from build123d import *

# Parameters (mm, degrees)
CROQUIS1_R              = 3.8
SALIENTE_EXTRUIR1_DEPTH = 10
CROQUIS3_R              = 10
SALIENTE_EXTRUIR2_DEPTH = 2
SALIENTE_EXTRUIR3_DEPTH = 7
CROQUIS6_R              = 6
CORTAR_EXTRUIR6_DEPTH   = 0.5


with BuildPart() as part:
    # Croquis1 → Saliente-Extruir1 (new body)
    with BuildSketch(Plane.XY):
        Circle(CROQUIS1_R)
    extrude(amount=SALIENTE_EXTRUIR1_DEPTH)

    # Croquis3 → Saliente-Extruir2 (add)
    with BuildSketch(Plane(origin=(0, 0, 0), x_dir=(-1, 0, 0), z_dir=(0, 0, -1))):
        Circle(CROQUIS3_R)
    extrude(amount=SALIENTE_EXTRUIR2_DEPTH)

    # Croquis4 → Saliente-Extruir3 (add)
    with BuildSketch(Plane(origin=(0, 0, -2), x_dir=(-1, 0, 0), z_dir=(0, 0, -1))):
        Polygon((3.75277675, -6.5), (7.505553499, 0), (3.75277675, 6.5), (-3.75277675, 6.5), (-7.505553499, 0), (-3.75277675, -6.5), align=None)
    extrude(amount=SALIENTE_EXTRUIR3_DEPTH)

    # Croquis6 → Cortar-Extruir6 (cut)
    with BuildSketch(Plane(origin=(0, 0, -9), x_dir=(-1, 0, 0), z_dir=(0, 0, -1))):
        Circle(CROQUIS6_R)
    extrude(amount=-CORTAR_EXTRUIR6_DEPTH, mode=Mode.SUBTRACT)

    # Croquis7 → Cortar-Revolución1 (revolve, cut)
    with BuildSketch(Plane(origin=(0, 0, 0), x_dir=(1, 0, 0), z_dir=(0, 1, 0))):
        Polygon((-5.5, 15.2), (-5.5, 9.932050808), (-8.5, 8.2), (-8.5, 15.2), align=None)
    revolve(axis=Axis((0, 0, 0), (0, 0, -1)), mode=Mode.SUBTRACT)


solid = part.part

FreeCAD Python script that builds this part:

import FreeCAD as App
import Part
import Sketcher
from FreeCAD import Vector
Q = App.Units.Quantity

doc = App.newDocument("Part")
params = doc.addObject("Spreadsheet::Sheet", "Params")
for row, (alias, value) in enumerate([
    ("sketch1_diameter", "7.6 mm"),
    ("pad1_length", "10 mm"),
    ("sketch2_diameter", "20 mm"),
    ("pad2_length", "2 mm"),
    ("pad3_length", "7 mm"),
    ("sketch4_diameter", "12 mm"),
    ("pocket1_length", "0.5 mm"),
    ("sketch5_width", "3 mm"),
    ("sketch5_height", "7 mm"),
    ("groove_angle", "360 deg"),
], start=1):
    params.set(f"A{row}", alias)
    params.set(f"B{row}", "=" + value)
    params.setAlias(f"B{row}", alias)

body = doc.addObject("PartDesign::Body", "Body")

sketch1 = body.newObject("Sketcher::SketchObject", "Sketch")
sketch1.AttachmentSupport = (doc.getObject("XY_Plane"), [""])
sketch1.MapMode = "FlatFace"
sketch1.addGeometry(Part.Circle(Vector(0, 0, 0), Vector(0, 0, 1), 3.8), False)
sketch1.addConstraint([
    Sketcher.Constraint("Coincident", 0, 3, -1, 1),
    Sketcher.Constraint("Diameter", 0, Q("7.6 mm")),
])
sketch1.setExpression("Constraints[1]", "Params.sketch1_diameter")
pad1 = body.newObject("PartDesign::Pad", "Pad")
pad1.Profile = sketch1
pad1.setExpression("Length", "Params.pad1_length")

sketch2 = body.newObject("Sketcher::SketchObject", "Sketch001")
sketch2.AttachmentSupport = (doc.getObject("XY_Plane"), [""])
sketch2.MapMode = "FlatFace"
sketch2.addGeometry(Part.Circle(Vector(0, 0, 0), Vector(0, 0, 1), 10), False)
sketch2.addConstraint([
    Sketcher.Constraint("Coincident", 0, 3, -1, 1),
    Sketcher.Constraint("Diameter", 0, Q("20 mm")),
])
sketch2.setExpression("Constraints[1]", "Params.sketch2_diameter")
pad2 = body.newObject("PartDesign::Pad", "Pad001")
pad2.Profile = sketch2
pad2.setExpression("Length", "Params.pad2_length")
pad2.Reversed = True

sketch3 = body.newObject("Sketcher::SketchObject", "Sketch002")
sketch3.AttachmentSupport = (doc.getObject("XY_Plane"), [""])
sketch3.MapMode = "FlatFace"
sketch3.AttachmentOffset = App.Placement(Vector(0, 0, -2), App.Rotation())
sketch3.addGeometry([
    Part.LineSegment(Vector(-4, -6, 0), Vector(-8, 0, 0)),
    Part.LineSegment(Vector(-8, 0, 0), Vector(-4, 6, 0)),
    Part.LineSegment(Vector(-4, 6, 0), Vector(4, 6, 0)),
    Part.LineSegment(Vector(4, 6, 0), Vector(8, 0, 0)),
    Part.LineSegment(Vector(8, 0, 0), Vector(4, -6, 0)),
    Part.LineSegment(Vector(4, -6, 0), Vector(-4, -6, 0)),
], False)
sketch3.addConstraint([
    Sketcher.Constraint("Coincident", 0, 2, 1, 1),
    Sketcher.Constraint("Coincident", 1, 2, 2, 1),
    Sketcher.Constraint("Coincident", 2, 2, 3, 1),
    Sketcher.Constraint("Coincident", 3, 2, 4, 1),
    Sketcher.Constraint("Coincident", 4, 2, 5, 1),
    Sketcher.Constraint("Coincident", 5, 2, 0, 1),
    Sketcher.Constraint("Horizontal", 2),
    Sketcher.Constraint("Horizontal", 5),
    Sketcher.Constraint("Symmetric", 0, 2, 3, 2, -1, 1),
    Sketcher.Constraint("Symmetric", 1, 2, 4, 2, -1, 1),
    Sketcher.Constraint("PointOnObject", 0, 2, -1),
    Sketcher.Constraint("Parallel", 0, 3),
    Sketcher.Constraint("Vertical", 2, 2, 4, 2),
    Sketcher.Constraint("Angle", 0, Q("120 deg")),
    Sketcher.Constraint("DistanceY", 4, 2, 2, 2, Q("13 mm")),
    Sketcher.Constraint("DistanceX", 2, 1, 2, 2, Q("7.505554 mm")),
])
pad3 = body.newObject("PartDesign::Pad", "Pad002")
pad3.Profile = sketch3
pad3.setExpression("Length", "Params.pad3_length")
pad3.Reversed = True

sketch4 = body.newObject("Sketcher::SketchObject", "Sketch003")
sketch4.AttachmentSupport = (doc.getObject("XY_Plane"), [""])
sketch4.MapMode = "FlatFace"
sketch4.AttachmentOffset = App.Placement(Vector(0, 0, -9), App.Rotation())
sketch4.addGeometry(Part.Circle(Vector(0, 0, 0), Vector(0, 0, 1), 6), False)
sketch4.addConstraint([
    Sketcher.Constraint("Coincident", 0, 3, -1, 1),
    Sketcher.Constraint("Diameter", 0, Q("12 mm")),
])
sketch4.setExpression("Constraints[1]", "Params.sketch4_diameter")
pocket1 = body.newObject("PartDesign::Pocket", "Pocket")
pocket1.Profile = sketch4
pocket1.setExpression("Length", "Params.pocket1_length")
pocket1.Reversed = True

sketch5 = body.newObject("Sketcher::SketchObject", "Sketch004")
sketch5.AttachmentSupport = (doc.getObject("XZ_Plane"), [""])
sketch5.MapMode = "FlatFace"
sketch5.addGeometry([
    Part.LineSegment(Vector(-5.5, -9.9, 0), Vector(-5.5, -15.2, 0)),
    Part.LineSegment(Vector(-5.5, -15.2, 0), Vector(-8.5, -15.2, 0)),
    Part.LineSegment(Vector(-8.5, -15.2, 0), Vector(-8.5, -8.2, 0)),
    Part.LineSegment(Vector(-8.5, -8.2, 0), Vector(-5.5, -9.9, 0)),
], False)
sketch5.addConstraint([
    Sketcher.Constraint("Coincident", 0, 2, 1, 1),
    Sketcher.Constraint("Coincident", 1, 2, 2, 1),
    Sketcher.Constraint("Coincident", 2, 2, 3, 1),
    Sketcher.Constraint("Coincident", 3, 2, 0, 1),
    Sketcher.Constraint("Vertical", 0),
    Sketcher.Constraint("Horizontal", 1),
    Sketcher.Constraint("Vertical", 2),
    Sketcher.Constraint("DistanceX", 1, 2, 1, 1, Q("3 mm")),
    Sketcher.Constraint("DistanceY", 2, 1, 2, 2, Q("7 mm")),
    Sketcher.Constraint("Angle", 3, Q("-30 deg")),
    Sketcher.Constraint("DistanceX", 0, 2, -1, 1, Q("5.5 mm")),
    Sketcher.Constraint("DistanceY", 0, 2, -1, 1, Q("15.2 mm")),
])
sketch5.setExpression("Constraints[7]", "Params.sketch5_width")
sketch5.setExpression("Constraints[8]", "Params.sketch5_height")
groove = body.newObject("PartDesign::Groove", "Groove")
groove.Profile = sketch5
groove.ReferenceAxis = (sketch5, ["V_Axis"])
groove.setExpression("Angle", "Params.groove_angle")

doc.recompute()
